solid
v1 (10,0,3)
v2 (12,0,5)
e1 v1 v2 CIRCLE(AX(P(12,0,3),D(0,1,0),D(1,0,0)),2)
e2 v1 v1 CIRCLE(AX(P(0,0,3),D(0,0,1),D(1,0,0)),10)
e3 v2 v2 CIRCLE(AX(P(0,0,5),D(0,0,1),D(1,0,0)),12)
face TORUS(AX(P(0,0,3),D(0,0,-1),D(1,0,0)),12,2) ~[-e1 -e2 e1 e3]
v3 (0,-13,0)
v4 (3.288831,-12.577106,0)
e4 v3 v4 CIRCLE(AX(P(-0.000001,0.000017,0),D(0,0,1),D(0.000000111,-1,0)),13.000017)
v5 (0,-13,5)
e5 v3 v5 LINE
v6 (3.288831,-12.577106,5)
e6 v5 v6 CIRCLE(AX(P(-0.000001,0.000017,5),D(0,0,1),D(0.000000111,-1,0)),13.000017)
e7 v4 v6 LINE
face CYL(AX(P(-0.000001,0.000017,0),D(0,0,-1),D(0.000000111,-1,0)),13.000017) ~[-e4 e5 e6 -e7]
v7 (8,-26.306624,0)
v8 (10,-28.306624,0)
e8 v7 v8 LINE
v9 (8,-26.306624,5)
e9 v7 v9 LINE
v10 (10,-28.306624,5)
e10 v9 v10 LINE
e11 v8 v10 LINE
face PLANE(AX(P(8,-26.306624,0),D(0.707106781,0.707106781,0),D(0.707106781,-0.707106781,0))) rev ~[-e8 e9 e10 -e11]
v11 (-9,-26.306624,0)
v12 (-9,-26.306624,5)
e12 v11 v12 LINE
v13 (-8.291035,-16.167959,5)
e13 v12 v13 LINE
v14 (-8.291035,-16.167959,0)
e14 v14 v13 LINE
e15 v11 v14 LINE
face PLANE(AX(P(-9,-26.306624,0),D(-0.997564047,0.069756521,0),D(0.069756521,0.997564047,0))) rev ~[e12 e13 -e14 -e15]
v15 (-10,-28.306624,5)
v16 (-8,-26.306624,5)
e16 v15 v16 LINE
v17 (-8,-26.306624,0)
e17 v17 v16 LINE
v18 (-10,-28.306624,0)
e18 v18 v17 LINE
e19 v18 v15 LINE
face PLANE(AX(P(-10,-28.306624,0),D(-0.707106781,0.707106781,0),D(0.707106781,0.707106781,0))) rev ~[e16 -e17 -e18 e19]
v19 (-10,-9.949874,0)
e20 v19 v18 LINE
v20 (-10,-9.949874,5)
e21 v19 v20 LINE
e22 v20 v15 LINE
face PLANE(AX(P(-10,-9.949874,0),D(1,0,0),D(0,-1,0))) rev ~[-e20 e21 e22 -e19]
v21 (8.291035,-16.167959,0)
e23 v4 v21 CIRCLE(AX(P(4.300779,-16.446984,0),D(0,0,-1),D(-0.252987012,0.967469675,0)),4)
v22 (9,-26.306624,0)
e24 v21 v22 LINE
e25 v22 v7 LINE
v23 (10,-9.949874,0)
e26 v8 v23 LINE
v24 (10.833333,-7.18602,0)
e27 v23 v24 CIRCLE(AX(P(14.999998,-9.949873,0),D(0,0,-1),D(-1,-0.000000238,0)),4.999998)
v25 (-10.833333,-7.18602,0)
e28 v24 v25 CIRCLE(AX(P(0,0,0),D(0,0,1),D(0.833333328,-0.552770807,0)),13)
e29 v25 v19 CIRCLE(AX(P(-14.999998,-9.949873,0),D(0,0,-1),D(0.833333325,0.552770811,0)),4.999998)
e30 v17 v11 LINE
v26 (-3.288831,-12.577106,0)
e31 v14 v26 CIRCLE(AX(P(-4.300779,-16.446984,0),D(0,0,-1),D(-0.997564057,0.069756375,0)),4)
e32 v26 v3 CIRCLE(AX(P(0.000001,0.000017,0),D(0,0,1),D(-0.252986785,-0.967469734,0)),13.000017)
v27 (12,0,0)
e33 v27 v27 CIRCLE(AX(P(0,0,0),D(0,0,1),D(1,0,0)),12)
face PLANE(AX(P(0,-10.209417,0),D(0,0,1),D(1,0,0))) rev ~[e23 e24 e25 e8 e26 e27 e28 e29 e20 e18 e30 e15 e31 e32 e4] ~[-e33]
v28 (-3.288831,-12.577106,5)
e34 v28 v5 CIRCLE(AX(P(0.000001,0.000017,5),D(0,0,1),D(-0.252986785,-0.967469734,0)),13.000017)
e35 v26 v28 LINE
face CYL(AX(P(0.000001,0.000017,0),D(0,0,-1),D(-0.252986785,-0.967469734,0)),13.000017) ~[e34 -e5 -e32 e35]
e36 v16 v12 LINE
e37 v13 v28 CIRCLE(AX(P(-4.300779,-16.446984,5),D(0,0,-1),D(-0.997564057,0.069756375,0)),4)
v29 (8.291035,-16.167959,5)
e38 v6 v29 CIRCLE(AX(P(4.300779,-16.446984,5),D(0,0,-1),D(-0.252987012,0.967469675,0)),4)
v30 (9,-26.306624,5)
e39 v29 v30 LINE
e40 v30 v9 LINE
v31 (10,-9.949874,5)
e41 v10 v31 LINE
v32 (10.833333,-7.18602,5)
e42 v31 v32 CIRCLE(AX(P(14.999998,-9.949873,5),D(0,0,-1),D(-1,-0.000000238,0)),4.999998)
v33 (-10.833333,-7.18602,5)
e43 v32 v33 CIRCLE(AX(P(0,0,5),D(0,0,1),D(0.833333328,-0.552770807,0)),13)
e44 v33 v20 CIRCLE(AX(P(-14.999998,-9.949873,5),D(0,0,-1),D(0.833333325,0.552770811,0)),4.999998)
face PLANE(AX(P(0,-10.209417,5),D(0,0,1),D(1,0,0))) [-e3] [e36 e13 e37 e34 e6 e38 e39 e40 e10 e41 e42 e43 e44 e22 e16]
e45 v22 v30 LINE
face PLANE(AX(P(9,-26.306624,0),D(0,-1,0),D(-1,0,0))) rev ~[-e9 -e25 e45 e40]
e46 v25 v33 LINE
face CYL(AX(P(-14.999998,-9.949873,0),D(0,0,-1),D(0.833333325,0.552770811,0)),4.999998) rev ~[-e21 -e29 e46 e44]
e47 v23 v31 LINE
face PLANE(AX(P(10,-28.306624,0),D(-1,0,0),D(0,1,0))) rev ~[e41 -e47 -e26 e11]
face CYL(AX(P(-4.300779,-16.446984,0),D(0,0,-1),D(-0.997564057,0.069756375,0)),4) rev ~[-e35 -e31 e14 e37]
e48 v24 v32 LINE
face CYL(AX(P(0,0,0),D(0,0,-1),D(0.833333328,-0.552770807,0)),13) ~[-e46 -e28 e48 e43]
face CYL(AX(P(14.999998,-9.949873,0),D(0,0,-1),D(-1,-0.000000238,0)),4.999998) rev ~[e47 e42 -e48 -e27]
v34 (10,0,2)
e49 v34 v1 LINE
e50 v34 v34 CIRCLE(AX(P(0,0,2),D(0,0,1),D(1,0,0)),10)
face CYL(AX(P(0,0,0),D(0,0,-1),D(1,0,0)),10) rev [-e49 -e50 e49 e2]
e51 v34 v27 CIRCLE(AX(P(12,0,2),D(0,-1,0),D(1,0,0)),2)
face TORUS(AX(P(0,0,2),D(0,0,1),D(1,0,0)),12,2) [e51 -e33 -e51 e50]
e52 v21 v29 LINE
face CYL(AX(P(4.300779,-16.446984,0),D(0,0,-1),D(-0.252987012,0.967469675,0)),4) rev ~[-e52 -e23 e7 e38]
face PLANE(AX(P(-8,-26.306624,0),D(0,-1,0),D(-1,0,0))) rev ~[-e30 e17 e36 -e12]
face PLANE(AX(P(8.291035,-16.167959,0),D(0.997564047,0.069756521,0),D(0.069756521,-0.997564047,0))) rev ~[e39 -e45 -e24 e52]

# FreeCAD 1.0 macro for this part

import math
import FreeCAD as App
import Part
import Sketcher
Q = App.Units.Quantity


def edges_at(feature, points):
    """Names of the edges that pass closest to the given points."""
    edges = feature.Shape.Edges
    near = lambda p: min(range(len(edges)), key=lambda i: edges[i].distToShape(Part.Vertex(*p))[0])
    return sorted({f"Edge{near(p) + 1}" for p in points})

doc = App.newDocument("Part")
body = doc.addObject("PartDesign::Body", "Body")

sketch1 = body.newObject("Sketcher::SketchObject", "Sketch")
sketch1.AttachmentSupport = (doc.getObject("XY_Plane"), [""])
sketch1.MapMode = "FlatFace"
sketch1.addGeometry([
    Part.ArcOfCircle(Part.Circle(App.Vector(-4.300779, -16.446984, 0), App.Vector(0, 0, 1), 4), math.radians(75.345661), math.radians(176.000006)),
    Part.ArcOfCircle(Part.Circle(App.Vector(0.000001, 0.000017, 0), App.Vector(0, 0, 1), 13.000017), math.radians(-104.654325), math.radians(-90.000006)),
    Part.ArcOfCircle(Part.Circle(App.Vector(-0.000001, 0.000017, 0), App.Vector(0, 0, 1), 13.000017), math.radians(-89.999994), math.radians(-75.345675)),
    Part.ArcOfCircle(Part.Circle(App.Vector(4.300779, -16.446984, 0), App.Vector(0, 0, 1), 4), math.radians(3.999994), math.radians(104.654339)),
    Part.LineSegment(App.Vector(8.291035, -16.167959, 0), App.Vector(9, -26.306624, 0)),
    Part.LineSegment(App.Vector(9, -26.306624, 0), App.Vector(8, -26.306624, 0)),
    Part.LineSegment(App.Vector(8, -26.306624, 0), App.Vector(10, -28.306624, 0)),
    Part.LineSegment(App.Vector(10, -28.306624, 0), App.Vector(10, -9.949874, 0)),
    Part.ArcOfCircle(Part.Circle(App.Vector(14.999998, -9.949873, 0), App.Vector(0, 0, 1), 4.999998), math.radians(146.442689), math.radians(180.000014)),
    Part.ArcOfCircle(Part.Circle(App.Vector(0, 0, 0), App.Vector(0, 0, 1), 13), math.radians(-33.55731), math.radians(213.55731)),
    Part.ArcOfCircle(Part.Circle(App.Vector(-14.999998, -9.949873, 0), App.Vector(0, 0, 1), 4.999998), math.radians(-0.000014), math.radians(33.557311)),
    Part.LineSegment(App.Vector(-10, -9.949874, 0), App.Vector(-10, -28.306624, 0)),
    Part.LineSegment(App.Vector(-10, -28.306624, 0), App.Vector(-8, -26.306624, 0)),
    Part.LineSegment(App.Vector(-8, -26.306624, 0), App.Vector(-9, -26.306624, 0)),
    Part.LineSegment(App.Vector(-9, -26.306624, 0), App.Vector(-8.291035, -16.167959, 0)),
    Part.Circle(App.Vector(0, 0, 0), App.Vector(0, 0, 1), 10),
], False)
sketch1.addConstraint([
    Sketcher.Constraint("Coincident", 0, 1, 1, 1),
    Sketcher.Constraint("Coincident", 1, 2, 2, 1),
    Sketcher.Constraint("Coincident", 2, 2, 3, 2),
    Sketcher.Constraint("Coincident", 3, 1, 4, 1),
    Sketcher.Constraint("Coincident", 4, 2, 5, 1),
    Sketcher.Constraint("Coincident", 5, 2, 6, 1),
    Sketcher.Constraint("Coincident", 6, 2, 7, 1),
    Sketcher.Constraint("Coincident", 7, 2, 8, 2),
    Sketcher.Constraint("Coincident", 8, 1, 9, 1),
    Sketcher.Constraint("Coincident", 9, 2, 10, 2),
    Sketcher.Constraint("Coincident", 10, 1, 11, 1),
    Sketcher.Constraint("Coincident", 11, 2, 12, 1),
    Sketcher.Constraint("Coincident", 12, 2, 13, 1),
    Sketcher.Constraint("Coincident", 13, 2, 14, 1),
    Sketcher.Constraint("Coincident", 14, 2, 0, 2),
    Sketcher.Constraint("Horizontal", 5),
    Sketcher.Constraint("Vertical", 7),
    Sketcher.Constraint("Vertical", 11),
    Sketcher.Constraint("Horizontal", 13),
    Sketcher.Constraint("Coincident", 9, 3, -1, 1),
    Sketcher.Constraint("Coincident", 15, 3, -1, 1),
    Sketcher.Constraint("Coincident", 2, 3, 1, 3),
    Sketcher.Constraint("PointOnObject", 1, 3, -2),
    Sketcher.Constraint("PointOnObject", 1, 2, -2),
    Sketcher.Constraint("Diameter", 15, Q("20 mm")),
    Sketcher.Constraint("Radius", 0, Q("4 mm")),
    Sketcher.Constraint("Radius", 3, Q("4 mm")),
    Sketcher.Constraint("Radius", 9, Q("13 mm")),
    Sketcher.Constraint("DistanceX", 5, 2, 5, 1, Q("1 mm")),
    Sketcher.Constraint("DistanceX", 13, 2, 13, 1, Q("1 mm")),
    Sketcher.Constraint("DistanceY", 1, 2, -1, 1, Q("13 mm")),
    Sketcher.Constraint("DistanceX", -1, 1, 4, 2, Q("9 mm")),
    Sketcher.Constraint("DistanceX", -1, 1, 6, 2, Q("10 mm")),
    Sketcher.Constraint("DistanceX", 10, 1, -1, 1, Q("10 mm")),
    Sketcher.Constraint("DistanceX", 12, 2, -1, 1, Q("8 mm")),
    Sketcher.Constraint("DistanceX", 2, 3, 8, 3, Q("14.999999 mm")),
    Sketcher.Constraint("DistanceX", 10, 3, 1, 3, Q("14.999999 mm")),
    Sketcher.Constraint("DistanceY", 6, 2, 4, 2, Q("2 mm")),
    Sketcher.Constraint("DistanceY", 11, 2, 5, 2, Q("2 mm")),
    Sketcher.Constraint("DistanceY", 11, 2, 12, 2, Q("2 mm")),
    Sketcher.Constraint("Radius", 1, Q("13.000017 mm")),
    Sketcher.Constraint("DistanceY", 0, 3, 1, 3, Q("16.447001 mm")),
    Sketcher.Constraint("DistanceY", 3, 3, 1, 3, Q("16.447001 mm")),
    Sketcher.Constraint("DistanceY", 7, 1, 7, 2, Q("18.35675 mm")),
    Sketcher.Constraint("DistanceY", 11, 2, 11, 1, Q("18.35675 mm")),
    Sketcher.Constraint("DistanceX", 9, 2, 0, 1, Q("7.544502 mm")),
    Sketcher.Constraint("DistanceX", 0, 1, -1, 1, Q("3.288831 mm")),
    Sketcher.Constraint("DistanceX", -1, 1, 2, 2, Q("3.288831 mm")),
    Sketcher.Constraint("DistanceY", 3, 1, -1, 1, Q("16.167959 mm")),
    Sketcher.Constraint("DistanceY", 8, 1, -1, 1, Q("7.18602 mm")),
    Sketcher.Constraint("DistanceY", 14, 2, -1, 1, Q("16.167959 mm")),
    Sketcher.Constraint("DistanceY", 4, 2, 3, 3, Q("9.85964 mm")),
])
pad1 = body.newObject("PartDesign::Pad", "Pad")
pad1.Profile = sketch1
pad1.Length = 5
doc.recompute()

fillet = body.newObject("PartDesign::Fillet", "Fillet")
fillet.Base = (pad1, edges_at(pad1, [(-10, 0, 0), (-10, 0, 5)]))
fillet.Radius = 2

doc.recompute()
